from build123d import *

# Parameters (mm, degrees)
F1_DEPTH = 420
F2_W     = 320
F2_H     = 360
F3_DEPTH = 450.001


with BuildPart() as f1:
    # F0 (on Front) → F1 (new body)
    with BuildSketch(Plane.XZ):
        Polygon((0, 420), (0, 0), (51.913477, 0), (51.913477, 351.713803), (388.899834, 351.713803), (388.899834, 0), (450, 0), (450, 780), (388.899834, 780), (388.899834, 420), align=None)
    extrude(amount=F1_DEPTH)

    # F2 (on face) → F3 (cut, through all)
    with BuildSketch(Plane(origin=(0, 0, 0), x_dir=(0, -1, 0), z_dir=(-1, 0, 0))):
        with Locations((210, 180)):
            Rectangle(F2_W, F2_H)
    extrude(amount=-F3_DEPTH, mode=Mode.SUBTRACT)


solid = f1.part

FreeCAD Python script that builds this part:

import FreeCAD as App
import Part
import Sketcher
from FreeCAD import Vector

doc = App.newDocument("Part")
body = doc.addObject("PartDesign::Body", "Body")

# Sketch on XZ plane
sketch1 = doc.addObject("Sketcher::SketchObject", "Sketch")
body.addObject(sketch1)
sketch1.AttachmentSupport = (doc.XZ_Plane, [""])
sketch1.MapMode = "FlatFace"
sketch1.addGeometry(Part.LineSegment(Vector(0, 420, 0), Vector(0, 0, 0)), False)
sketch1.addGeometry(Part.LineSegment(Vector(0, 0, 0), Vector(52, 0, 0)), False)
sketch1.addGeometry(Part.LineSegment(Vector(52, 0, 0), Vector(52, 352, 0)), False)
sketch1.addGeometry(Part.LineSegment(Vector(52, 352, 0), Vector(389, 352, 0)), False)
sketch1.addGeometry(Part.LineSegment(Vector(389, 352, 0), Vector(389, 0, 0)), False)
sketch1.addGeometry(Part.LineSegment(Vector(389, 0, 0), Vector(450, 0, 0)), False)
sketch1.addGeometry(Part.LineSegment(Vector(450, 0, 0), Vector(450, 780, 0)), False)
sketch1.addGeometry(Part.LineSegment(Vector(450, 780, 0), Vector(389, 780, 0)), False)
sketch1.addGeometry(Part.LineSegment(Vector(389, 780, 0), Vector(389, 420, 0)), False)
sketch1.addGeometry(Part.LineSegment(Vector(389, 420, 0), Vector(0, 420, 0)), False)
sketch1.addConstraint(Sketcher.Constraint("Coincident", 0, 2, 1, 1))
sketch1.addConstraint(Sketcher.Constraint("Coincident", 1, 2, 2, 1))
sketch1.addConstraint(Sketcher.Constraint("Coincident", 2, 2, 3, 1))
sketch1.addConstraint(Sketcher.Constraint("Coincident", 3, 2, 4, 1))
sketch1.addConstraint(Sketcher.Constraint("Coincident", 4, 2, 5, 1))
sketch1.addConstraint(Sketcher.Constraint("Coincident", 5, 2, 6, 1))
sketch1.addConstraint(Sketcher.Constraint("Coincident", 6, 2, 7, 1))
sketch1.addConstraint(Sketcher.Constraint("Coincident", 7, 2, 8, 1))
sketch1.addConstraint(Sketcher.Constraint("Coincident", 8, 2, 9, 1))
sketch1.addConstraint(Sketcher.Constraint("Coincident", 9, 2, 0, 1))
sketch1.addConstraint(Sketcher.Constraint("Vertical", 0))
sketch1.addConstraint(Sketcher.Constraint("Horizontal", 1))
sketch1.addConstraint(Sketcher.Constraint("Vertical", 2))
sketch1.addConstraint(Sketcher.Constraint("Horizontal", 3))
sketch1.addConstraint(Sketcher.Constraint("Vertical", 4))
sketch1.addConstraint(Sketcher.Constraint("Horizontal", 5))
sketch1.addConstraint(Sketcher.Constraint("Vertical", 6))
sketch1.addConstraint(Sketcher.Constraint("Horizontal", 7))
sketch1.addConstraint(Sketcher.Constraint("Vertical", 8))
sketch1.addConstraint(Sketcher.Constraint("Horizontal", 9))
sketch1.addConstraint(Sketcher.Constraint("Coincident", 0, 2, -1, 1))
sketch1.addConstraint(Sketcher.Constraint("PointOnObject", 4, 2, -1))
sketch1.addConstraint(Sketcher.Constraint("Vertical", 4, 2, 7, 2))
sketch1.addConstraint(Sketcher.Constraint("DistanceY", 0, 2, 0, 1, 420.0))
sketch1.addConstraint(Sketcher.Constraint("DistanceY", 6, 1, 6, 2, 780.0))
sketch1.addConstraint(Sketcher.Constraint("DistanceX", -1, 1, 5, 2, 450.0))
sketch1.addConstraint(Sketcher.Constraint("DistanceX", 1, 1, 1, 2, 51.913477))
sketch1.addConstraint(Sketcher.Constraint("DistanceX", 3, 1, 3, 2, 336.986357))
sketch1.addConstraint(Sketcher.Constraint("DistanceY", 2, 1, 2, 2, 351.713803))
pad1 = doc.addObject("PartDesign::Pad", "Pad")
body.addObject(pad1)
pad1.Profile = sketch1
pad1.Length = 420

# Sketch on YZ plane
sketch2 = doc.addObject("Sketcher::SketchObject", "Sketch001")
body.addObject(sketch2)
sketch2.AttachmentSupport = (doc.YZ_Plane, [""])
sketch2.MapMode = "FlatFace"
sketch2.addGeometry(Part.LineSegment(Vector(-50, 360, 0), Vector(-50, 0, 0)), False)
sketch2.addGeometry(Part.LineSegment(Vector(-50, 0, 0), Vector(-370, 0, 0)), False)
sketch2.addGeometry(Part.LineSegment(Vector(-370, 0, 0), Vector(-370, 360, 0)), False)
sketch2.addGeometry(Part.LineSegment(Vector(-370, 360, 0), Vector(-50, 360, 0)), False)
sketch2.addConstraint(Sketcher.Constraint("Coincident", 0, 2, 1, 1))
sketch2.addConstraint(Sketcher.Constraint("Coincident", 1, 2, 2, 1))
sketch2.addConstraint(Sketcher.Constraint("Coincident", 2, 2, 3, 1))
sketch2.addConstraint(Sketcher.Constraint("Coincident", 3, 2, 0, 1))
sketch2.addConstraint(Sketcher.Constraint("Vertical", 0))
sketch2.addConstraint(Sketcher.Constraint("Horizontal", 1))
sketch2.addConstraint(Sketcher.Constraint("Vertical", 2))
sketch2.addConstraint(Sketcher.Constraint("Horizontal", 3))
sketch2.addConstraint(Sketcher.Constraint("PointOnObject", 0, 2, -1))
sketch2.addConstraint(Sketcher.Constraint("DistanceX", 1, 2, 1, 1, 320.0))
sketch2.addConstraint(Sketcher.Constraint("DistanceY", 0, 2, 0, 1, 360.0))
sketch2.addConstraint(Sketcher.Constraint("DistanceX", 0, 2, -1, 1, 50.0))
pocket1 = doc.addObject("PartDesign::Pocket", "Pocket")
body.addObject(pocket1)
pocket1.Profile = sketch2
pocket1.Type = "ThroughAll"
pocket1.Reversed = True

doc.recompute()
